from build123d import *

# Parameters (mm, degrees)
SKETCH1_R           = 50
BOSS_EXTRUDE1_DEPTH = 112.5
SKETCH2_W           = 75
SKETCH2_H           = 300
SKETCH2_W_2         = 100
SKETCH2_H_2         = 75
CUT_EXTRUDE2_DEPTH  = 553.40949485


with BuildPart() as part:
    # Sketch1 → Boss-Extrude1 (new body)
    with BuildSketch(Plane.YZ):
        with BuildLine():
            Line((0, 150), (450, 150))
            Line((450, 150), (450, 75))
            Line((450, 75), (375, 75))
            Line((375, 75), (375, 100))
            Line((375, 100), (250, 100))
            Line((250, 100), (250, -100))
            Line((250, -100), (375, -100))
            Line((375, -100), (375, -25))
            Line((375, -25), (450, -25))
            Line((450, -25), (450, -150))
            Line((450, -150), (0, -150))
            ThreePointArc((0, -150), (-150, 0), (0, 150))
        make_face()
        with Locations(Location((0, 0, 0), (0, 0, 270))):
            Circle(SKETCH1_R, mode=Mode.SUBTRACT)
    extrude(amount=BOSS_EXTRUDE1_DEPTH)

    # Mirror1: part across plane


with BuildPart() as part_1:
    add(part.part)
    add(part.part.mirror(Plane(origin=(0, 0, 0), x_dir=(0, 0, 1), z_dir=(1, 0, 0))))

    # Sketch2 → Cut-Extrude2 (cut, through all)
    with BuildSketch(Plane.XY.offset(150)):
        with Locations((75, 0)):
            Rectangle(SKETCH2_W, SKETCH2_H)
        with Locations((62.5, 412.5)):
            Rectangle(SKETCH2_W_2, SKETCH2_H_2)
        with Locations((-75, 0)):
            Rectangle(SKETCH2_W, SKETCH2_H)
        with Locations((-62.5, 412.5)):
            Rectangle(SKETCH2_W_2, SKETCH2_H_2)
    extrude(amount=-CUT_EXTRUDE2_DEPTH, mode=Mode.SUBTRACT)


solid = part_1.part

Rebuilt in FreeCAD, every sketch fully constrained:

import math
import FreeCAD as App
import Part
import Sketcher


def add_polygon(sketch, points):
    """Adds a closed chain of lines whose ends are joined by coincident constraints."""
    first, n = sketch.GeometryCount, len(points)
    for a, b in zip(points, points[1:] + points[:1]):
        sketch.addGeometry(Part.LineSegment(App.Vector(*a, 0), App.Vector(*b, 0)), False)
    for i in range(n):
        sketch.addConstraint(Sketcher.Constraint("Coincident", first + i, 2, first + (i + 1) % n, 1))

doc = App.newDocument("Part")
body = doc.addObject("PartDesign::Body", "Body")

# Sketch on YZ plane
sketch1 = body.newObject("Sketcher::SketchObject", "Sketch")
sketch1.AttachmentSupport = (doc.getObject("YZ_Plane"), [""])
sketch1.MapMode = "FlatFace"
sketch1.addGeometry(Part.LineSegment(App.Vector(450, 150, 0), App.Vector(0, 150, 0)), False)
sketch1.addGeometry(Part.ArcOfCircle(Part.Circle(App.Vector(0, 0, 0), App.Vector(0, 0, 1), 150), math.radians(90), math.radians(270)), False)
sketch1.addGeometry(Part.LineSegment(App.Vector(0, -150, 0), App.Vector(450, -150, 0)), False)
sketch1.addGeometry(Part.LineSegment(App.Vector(450, -150, 0), App.Vector(450, -25, 0)), False)
sketch1.addGeometry(Part.LineSegment(App.Vector(450, -25, 0), App.Vector(375, -25, 0)), False)
sketch1.addGeometry(Part.LineSegment(App.Vector(375, -25, 0), App.Vector(375, -100, 0)), False)
sketch1.addGeometry(Part.LineSegment(App.Vector(375, -100, 0), App.Vector(250, -100, 0)), False)
sketch1.addGeometry(Part.LineSegment(App.Vector(250, -100, 0), App.Vector(250, 100, 0)), False)
sketch1.addGeometry(Part.LineSegment(App.Vector(250, 100, 0), App.Vector(375, 100, 0)), False)
sketch1.addGeometry(Part.LineSegment(App.Vector(375, 100, 0), App.Vector(375, 75, 0)), False)
sketch1.addGeometry(Part.LineSegment(App.Vector(375, 75, 0), App.Vector(450, 75, 0)), False)
sketch1.addGeometry(Part.LineSegment(App.Vector(450, 75, 0), App.Vector(450, 150, 0)), False)
sketch1.addGeometry(Part.Circle(App.Vector(0, 0, 0), App.Vector(0, 0, 1), 50), False)
sketch1.addConstraint(Sketcher.Constraint("Tangent", 0, 2, 1, 1))
sketch1.addConstraint(Sketcher.Constraint("Tangent", 1, 2, 2, 1))
sketch1.addConstraint(Sketcher.Constraint("Coincident", 2, 2, 3, 1))
sketch1.addConstraint(Sketcher.Constraint("Coincident", 3, 2, 4, 1))
sketch1.addConstraint(Sketcher.Constraint("Coincident", 4, 2, 5, 1))
sketch1.addConstraint(Sketcher.Constraint("Coincident", 5, 2, 6, 1))
sketch1.addConstraint(Sketcher.Constraint("Coincident", 6, 2, 7, 1))
sketch1.addConstraint(Sketcher.Constraint("Coincident", 7, 2, 8, 1))
sketch1.addConstraint(Sketcher.Constraint("Coincident", 8, 2, 9, 1))
sketch1.addConstraint(Sketcher.Constraint("Coincident", 9, 2, 10, 1))
sketch1.addConstraint(Sketcher.Constraint("Coincident", 10, 2, 11, 1))
sketch1.addConstraint(Sketcher.Constraint("Coincident", 11, 2, 0, 1))
sketch1.addConstraint(Sketcher.Constraint("Horizontal", 0))
sketch1.addConstraint(Sketcher.Constraint("Horizontal", 2))
sketch1.addConstraint(Sketcher.Constraint("Vertical", 3))
sketch1.addConstraint(Sketcher.Constraint("Horizontal", 4))
sketch1.addConstraint(Sketcher.Constraint("Vertical", 5))
sketch1.addConstraint(Sketcher.Constraint("Horizontal", 6))
sketch1.addConstraint(Sketcher.Constraint("Vertical", 7))
sketch1.addConstraint(Sketcher.Constraint("Horizontal", 8))
sketch1.addConstraint(Sketcher.Constraint("Vertical", 9))
sketch1.addConstraint(Sketcher.Constraint("Horizontal", 10))
sketch1.addConstraint(Sketcher.Constraint("Vertical", 11))
sketch1.addConstraint(Sketcher.Constraint("Coincident", 1, 3, -1, 1))
sketch1.addConstraint(Sketcher.Constraint("Coincident", 12, 3, -1, 1))
sketch1.addConstraint(Sketcher.Constraint("Symmetric", 5, 2, 8, 2, -1))
sketch1.addConstraint(Sketcher.Constraint("Vertical", 3, 2, 10, 2))
sketch1.addConstraint(Sketcher.Constraint("Equal", 8, 3))
sketch1.addConstraint(Sketcher.Constraint("Equal", 10, 5))
sketch1.addConstraint(Sketcher.Constraint("Equal", 5, 11))
sketch1.addConstraint(Sketcher.Constraint("Diameter", 12, 100.0))
sketch1.addConstraint(Sketcher.Constraint("Radius", 1, 150.0))
sketch1.addConstraint(Sketcher.Constraint("DistanceX", 0, 2, 0, 1, 450.0))
sketch1.addConstraint(Sketcher.Constraint("DistanceX", 4, 2, 4, 1, 75.0))
sketch1.addConstraint(Sketcher.Constraint("DistanceX", 6, 2, 6, 1, 125.0))
pad1 = body.newObject("PartDesign::Pad", "Pad")
pad1.Profile = sketch1
pad1.Length = 112.5
body2 = doc.addObject("PartDesign::Body", "Body001")
doc.recompute()

body2.BaseFeature = body
doc.recompute()

mirroring = doc.addObject("Part::Mirroring", "Mirroring")
mirroring.Source = body
mirroring.Base = App.Vector(0, 0, 0)
mirroring.Normal = App.Vector(1, 0, 0)
body3 = doc.addObject("PartDesign::Body", "Body002")
body3.BaseFeature = mirroring
boolean = body2.newObject("PartDesign::Boolean", "Boolean")
boolean.Type = "Fuse"
boolean.addObjects([body3])
doc.recompute()

# Sketch on XY plane
sketch2 = body2.newObject("Sketcher::SketchObject", "Sketch001")
sketch2.AttachmentSupport = (doc.getObject("XY_Plane001"), [""])
sketch2.MapMode = "FlatFace"
sketch2.AttachmentOffset = App.Placement(App.Vector(0, 0, 150), App.Rotation())
add_polygon(sketch2, [(38, 150), (38, -150), (112, -150), (112, 150)])  # lines 0-3
add_polygon(sketch2, [(12, 450), (12, 375), (112, 375), (112, 450)])  # lines 4-7
add_polygon(sketch2, [(-112, 150), (-112, -150), (-38, -150), (-38, 150)])  # lines 8-11
add_polygon(sketch2, [(-112, 450), (-112, 375), (-12, 375), (-12, 450)])  # lines 12-15
sketch2.addConstraint(Sketcher.Constraint("Vertical", 0))
sketch2.addConstraint(Sketcher.Constraint("Horizontal", 1))
sketch2.addConstraint(Sketcher.Constraint("Vertical", 2))
sketch2.addConstraint(Sketcher.Constraint("Horizontal", 3))
sketch2.addConstraint(Sketcher.Constraint("Vertical", 4))
sketch2.addConstraint(Sketcher.Constraint("Horizontal", 5))
sketch2.addConstraint(Sketcher.Constraint("Vertical", 6))
sketch2.addConstraint(Sketcher.Constraint("Horizontal", 7))
sketch2.addConstraint(Sketcher.Constraint("Vertical", 8))
sketch2.addConstraint(Sketcher.Constraint("Horizontal", 9))
sketch2.addConstraint(Sketcher.Constraint("Vertical", 10))
sketch2.addConstraint(Sketcher.Constraint("Horizontal", 11))
sketch2.addConstraint(Sketcher.Constraint("Vertical", 12))
sketch2.addConstraint(Sketcher.Constraint("Horizontal", 13))
sketch2.addConstraint(Sketcher.Constraint("Vertical", 14))
sketch2.addConstraint(Sketcher.Constraint("Horizontal", 15))
sketch2.addConstraint(Sketcher.Constraint("Symmetric", 2, 2, 8, 2, -1, 1))
sketch2.addConstraint(Sketcher.Constraint("Symmetric", 0, 2, 10, 2, -1, 1))
sketch2.addConstraint(Sketcher.Constraint("Symmetric", 5, 2, 12, 2, -2))
sketch2.addConstraint(Sketcher.Constraint("Symmetric", 7, 2, 14, 2, -2))
sketch2.addConstraint(Sketcher.Constraint("Horizontal", 1, 2, 8, 2))
sketch2.addConstraint(Sketcher.Constraint("Vertical", 2, 2, 5, 2))
sketch2.addConstraint(Sketcher.Constraint("Equal", 11, 4))
sketch2.addConstraint(Sketcher.Constraint("DistanceX", 1, 1, 1, 2, 75.0))
sketch2.addConstraint(Sketcher.Constraint("DistanceX", 5, 1, 5, 2, 100.0))
sketch2.addConstraint(Sketcher.Constraint("DistanceY", 0, 2, 0, 1, 300.0))
sketch2.addConstraint(Sketcher.Constraint("DistanceY", -1, 1, 4, 2, 375.0))
sketch2.addConstraint(Sketcher.Constraint("DistanceX", 8, 2, 0, 2, 150.0))
pocket1 = body2.newObject("PartDesign::Pocket", "Pocket")
pocket1.Profile = sketch2
pocket1.Type = "ThroughAll"
mirroring.Visibility = False

doc.recompute()
